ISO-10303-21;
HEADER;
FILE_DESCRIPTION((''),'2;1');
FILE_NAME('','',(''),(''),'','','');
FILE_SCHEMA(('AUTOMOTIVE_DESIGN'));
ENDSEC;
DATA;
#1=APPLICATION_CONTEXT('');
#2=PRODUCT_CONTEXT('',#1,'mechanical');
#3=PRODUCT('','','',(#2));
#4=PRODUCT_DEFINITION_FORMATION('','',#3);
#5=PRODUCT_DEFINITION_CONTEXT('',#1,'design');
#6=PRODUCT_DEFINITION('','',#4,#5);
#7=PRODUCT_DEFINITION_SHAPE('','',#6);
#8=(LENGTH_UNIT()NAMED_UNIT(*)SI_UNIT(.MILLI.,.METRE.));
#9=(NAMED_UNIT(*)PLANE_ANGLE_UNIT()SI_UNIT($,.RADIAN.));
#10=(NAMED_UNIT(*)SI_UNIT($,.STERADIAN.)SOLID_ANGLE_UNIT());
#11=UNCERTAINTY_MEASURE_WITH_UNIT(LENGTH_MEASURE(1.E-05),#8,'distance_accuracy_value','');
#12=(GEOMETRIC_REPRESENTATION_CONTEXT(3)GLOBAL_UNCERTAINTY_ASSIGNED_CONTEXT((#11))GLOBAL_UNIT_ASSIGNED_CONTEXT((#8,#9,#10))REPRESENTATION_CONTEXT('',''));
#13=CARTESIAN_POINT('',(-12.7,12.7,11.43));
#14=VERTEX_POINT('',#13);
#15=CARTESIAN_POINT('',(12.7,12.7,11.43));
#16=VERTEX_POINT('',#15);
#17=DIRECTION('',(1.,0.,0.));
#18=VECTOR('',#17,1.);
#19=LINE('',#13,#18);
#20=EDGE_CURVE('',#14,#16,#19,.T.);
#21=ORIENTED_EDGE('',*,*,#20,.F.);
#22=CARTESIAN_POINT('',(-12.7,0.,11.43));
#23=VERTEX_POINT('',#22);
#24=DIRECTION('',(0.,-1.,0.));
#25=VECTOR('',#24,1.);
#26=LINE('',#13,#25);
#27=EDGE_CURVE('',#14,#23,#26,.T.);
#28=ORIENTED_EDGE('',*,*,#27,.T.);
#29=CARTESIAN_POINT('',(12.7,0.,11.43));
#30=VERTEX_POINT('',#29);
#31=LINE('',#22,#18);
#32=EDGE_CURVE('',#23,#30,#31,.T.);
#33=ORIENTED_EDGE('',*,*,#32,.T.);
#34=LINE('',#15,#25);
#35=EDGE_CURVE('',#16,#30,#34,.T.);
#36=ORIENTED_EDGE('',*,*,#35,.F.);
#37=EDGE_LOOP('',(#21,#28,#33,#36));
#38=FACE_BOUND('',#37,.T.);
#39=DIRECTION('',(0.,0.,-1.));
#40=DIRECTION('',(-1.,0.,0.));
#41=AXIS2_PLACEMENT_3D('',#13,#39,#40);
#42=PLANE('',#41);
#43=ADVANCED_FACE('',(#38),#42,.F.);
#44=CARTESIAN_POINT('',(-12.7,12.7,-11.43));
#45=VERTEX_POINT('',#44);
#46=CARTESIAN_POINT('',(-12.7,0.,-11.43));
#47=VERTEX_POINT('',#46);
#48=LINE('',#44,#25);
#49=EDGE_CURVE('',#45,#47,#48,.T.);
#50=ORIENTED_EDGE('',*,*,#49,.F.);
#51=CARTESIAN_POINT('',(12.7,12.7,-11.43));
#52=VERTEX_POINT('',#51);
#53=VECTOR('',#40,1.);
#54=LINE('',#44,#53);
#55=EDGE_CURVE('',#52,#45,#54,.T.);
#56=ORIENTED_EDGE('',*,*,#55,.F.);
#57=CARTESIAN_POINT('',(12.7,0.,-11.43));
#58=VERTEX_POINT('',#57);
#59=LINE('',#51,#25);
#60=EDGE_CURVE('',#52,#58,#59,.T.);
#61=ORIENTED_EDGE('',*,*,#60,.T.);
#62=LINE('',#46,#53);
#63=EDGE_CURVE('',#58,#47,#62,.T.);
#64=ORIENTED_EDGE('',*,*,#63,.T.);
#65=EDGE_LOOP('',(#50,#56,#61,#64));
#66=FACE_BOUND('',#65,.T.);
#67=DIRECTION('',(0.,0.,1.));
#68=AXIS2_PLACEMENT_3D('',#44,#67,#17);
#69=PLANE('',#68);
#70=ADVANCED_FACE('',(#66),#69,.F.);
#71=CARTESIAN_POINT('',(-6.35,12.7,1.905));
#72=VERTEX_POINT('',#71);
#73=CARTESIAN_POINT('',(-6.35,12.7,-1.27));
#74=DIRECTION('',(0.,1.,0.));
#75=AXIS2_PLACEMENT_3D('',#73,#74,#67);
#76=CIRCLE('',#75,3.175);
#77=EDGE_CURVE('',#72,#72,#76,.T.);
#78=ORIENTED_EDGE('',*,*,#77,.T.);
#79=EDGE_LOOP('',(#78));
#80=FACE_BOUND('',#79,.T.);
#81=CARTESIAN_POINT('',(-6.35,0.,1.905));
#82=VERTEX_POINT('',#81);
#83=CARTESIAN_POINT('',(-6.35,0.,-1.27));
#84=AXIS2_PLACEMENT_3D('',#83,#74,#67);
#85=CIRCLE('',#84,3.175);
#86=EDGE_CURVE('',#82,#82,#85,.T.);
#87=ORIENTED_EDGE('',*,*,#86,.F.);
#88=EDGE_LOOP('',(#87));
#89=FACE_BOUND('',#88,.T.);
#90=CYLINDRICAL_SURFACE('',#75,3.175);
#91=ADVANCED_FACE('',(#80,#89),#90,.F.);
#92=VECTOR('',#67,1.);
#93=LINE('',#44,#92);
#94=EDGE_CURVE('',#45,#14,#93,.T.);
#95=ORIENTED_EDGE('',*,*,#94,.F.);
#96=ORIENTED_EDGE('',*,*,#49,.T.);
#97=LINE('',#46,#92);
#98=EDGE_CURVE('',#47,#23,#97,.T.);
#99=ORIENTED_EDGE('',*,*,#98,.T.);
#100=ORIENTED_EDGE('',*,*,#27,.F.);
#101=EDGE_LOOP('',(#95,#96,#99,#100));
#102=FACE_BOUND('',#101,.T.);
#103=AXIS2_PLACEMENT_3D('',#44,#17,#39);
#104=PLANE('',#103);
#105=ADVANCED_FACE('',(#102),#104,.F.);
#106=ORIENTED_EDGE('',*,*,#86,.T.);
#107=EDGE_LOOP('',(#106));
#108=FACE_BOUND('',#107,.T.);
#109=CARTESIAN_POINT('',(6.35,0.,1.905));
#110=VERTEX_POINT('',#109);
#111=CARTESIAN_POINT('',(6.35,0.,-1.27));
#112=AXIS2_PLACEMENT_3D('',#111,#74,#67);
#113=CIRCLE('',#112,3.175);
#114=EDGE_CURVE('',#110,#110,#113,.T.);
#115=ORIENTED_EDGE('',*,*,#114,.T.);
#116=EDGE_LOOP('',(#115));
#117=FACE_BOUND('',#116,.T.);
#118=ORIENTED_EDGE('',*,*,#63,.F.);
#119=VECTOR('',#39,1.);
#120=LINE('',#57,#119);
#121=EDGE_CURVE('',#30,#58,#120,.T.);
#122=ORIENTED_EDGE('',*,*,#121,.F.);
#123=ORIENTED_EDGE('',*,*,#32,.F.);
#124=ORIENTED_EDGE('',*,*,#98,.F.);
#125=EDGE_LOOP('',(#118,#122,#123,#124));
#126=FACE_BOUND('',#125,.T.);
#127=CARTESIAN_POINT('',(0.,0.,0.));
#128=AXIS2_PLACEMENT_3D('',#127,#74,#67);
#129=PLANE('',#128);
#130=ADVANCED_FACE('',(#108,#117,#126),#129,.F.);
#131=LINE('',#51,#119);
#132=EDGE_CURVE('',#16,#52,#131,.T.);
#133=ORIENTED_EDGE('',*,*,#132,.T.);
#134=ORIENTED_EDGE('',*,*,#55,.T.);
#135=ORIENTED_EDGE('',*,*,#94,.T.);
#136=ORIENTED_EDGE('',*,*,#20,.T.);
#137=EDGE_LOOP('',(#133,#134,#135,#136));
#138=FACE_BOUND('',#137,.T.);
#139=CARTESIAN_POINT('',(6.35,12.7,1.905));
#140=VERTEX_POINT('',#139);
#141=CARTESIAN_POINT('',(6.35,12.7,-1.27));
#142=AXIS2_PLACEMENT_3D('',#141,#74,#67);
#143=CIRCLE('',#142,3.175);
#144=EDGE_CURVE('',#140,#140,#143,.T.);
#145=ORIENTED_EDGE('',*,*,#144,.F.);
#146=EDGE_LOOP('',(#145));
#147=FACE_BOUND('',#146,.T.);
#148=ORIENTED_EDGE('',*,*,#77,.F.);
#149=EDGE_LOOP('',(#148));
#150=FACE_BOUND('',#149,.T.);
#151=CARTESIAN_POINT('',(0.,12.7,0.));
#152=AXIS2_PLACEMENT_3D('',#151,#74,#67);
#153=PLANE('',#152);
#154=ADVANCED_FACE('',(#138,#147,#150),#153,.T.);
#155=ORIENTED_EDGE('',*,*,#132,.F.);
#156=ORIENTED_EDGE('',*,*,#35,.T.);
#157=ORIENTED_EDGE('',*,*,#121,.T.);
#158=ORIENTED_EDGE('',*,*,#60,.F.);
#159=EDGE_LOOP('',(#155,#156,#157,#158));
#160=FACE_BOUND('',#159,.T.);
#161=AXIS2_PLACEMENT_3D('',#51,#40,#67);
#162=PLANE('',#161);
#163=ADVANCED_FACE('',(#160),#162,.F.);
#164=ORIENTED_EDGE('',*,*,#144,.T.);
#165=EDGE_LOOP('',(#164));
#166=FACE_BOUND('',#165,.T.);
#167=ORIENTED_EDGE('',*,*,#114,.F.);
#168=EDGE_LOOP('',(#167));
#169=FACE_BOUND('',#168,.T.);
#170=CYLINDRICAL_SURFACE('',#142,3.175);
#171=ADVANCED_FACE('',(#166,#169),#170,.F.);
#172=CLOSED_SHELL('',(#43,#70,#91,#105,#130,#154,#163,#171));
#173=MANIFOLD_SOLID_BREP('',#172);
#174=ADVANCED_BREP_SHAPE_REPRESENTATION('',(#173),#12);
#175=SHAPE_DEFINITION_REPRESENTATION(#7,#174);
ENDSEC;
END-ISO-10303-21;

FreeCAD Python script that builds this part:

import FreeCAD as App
import Part
import Sketcher

V = App.Vector
Q = App.Units.Quantity


def add_polygon(sketch, points):
    """Adds a closed chain of lines whose ends are joined by coincident constraints."""
    first, n = sketch.GeometryCount, len(points)
    for a, b in zip(points, points[1:] + points[:1]):
        sketch.addGeometry(Part.LineSegment(App.Vector(*a, 0), App.Vector(*b, 0)), False)
    for i in range(n):
        sketch.addConstraint(Sketcher.Constraint("Coincident", first + i, 2, first + (i + 1) % n, 1))

doc = App.newDocument("Part")
params = doc.addObject("Spreadsheet::Sheet", "Params")
for row, (alias, value) in enumerate([
    ("sketch1_width", "1 in"),
    ("sketch1_height", "0.9 in"),
    ("pad1_length", "0.5 in"),
    ("sketch2_diameter", "0.25 in"),
    ("hole_diameter", "0.25 in"),
    ("hole_depth", "0.5 in"),
], start=1):
    params.set(f"A{row}", alias)
    params.set(f"B{row}", "=" + value)
    params.setAlias(f"B{row}", alias)

body = doc.addObject("PartDesign::Body", "Body")

# Sketch on XZ plane
sketch1 = body.newObject("Sketcher::SketchObject", "Sketch")
sketch1.AttachmentSupport = (doc.getObject("XZ_Plane"), [""])
sketch1.MapMode = "FlatFace"
add_polygon(sketch1, [(-13, -11), (-13, 11), (13, 11), (13, -11)])  # lines 0-3
sketch1.addConstraint([
    Sketcher.Constraint("Vertical", 0),
    Sketcher.Constraint("Horizontal", 1),
    Sketcher.Constraint("Vertical", 2),
    Sketcher.Constraint("Horizontal", 3),
    Sketcher.Constraint("Symmetric", 0, 2, 2, 2, -1, 1),
    Sketcher.Constraint("DistanceX", 1, 1, 1, 2, Q("1 in")),
    Sketcher.Constraint("DistanceY", 0, 1, 0, 2, Q("0.9 in")),
])
sketch1.setExpression("Constraints[9]", "Params.sketch1_width")
sketch1.setExpression("Constraints[10]", "Params.sketch1_height")
pad1 = body.newObject("PartDesign::Pad", "Pad")
pad1.Profile = sketch1
pad1.setExpression("Length", "Params.pad1_length")
pad1.Reversed = True

# Sketch on XZ plane
sketch2 = body.newObject("Sketcher::SketchObject", "Sketch001")
sketch2.AttachmentSupport = (doc.getObject("XZ_Plane"), [""])
sketch2.MapMode = "FlatFace"
sketch2.AttachmentOffset = App.Placement(V(0, 0, -0.5 * 25.4), App.Rotation())
sketch2.addGeometry([
    Part.Circle(V(-6.3, -1.3, 0), V(0, 0, 1), 3.2),
    Part.Circle(V(6.3, -1.3, 0), V(0, 0, 1), 3.2),
], False)
sketch2.addConstraint([
    Sketcher.Constraint("Equal", 0, 1),
    Sketcher.Constraint("Symmetric", 0, 3, 1, 3, -2),
    Sketcher.Constraint("Diameter", 0, Q("0.25 in")),
    Sketcher.Constraint("DistanceX", 0, 3, 1, 3, Q("0.5 in")),
    Sketcher.Constraint("DistanceY", 0, 3, -1, 1, Q("0.05 in")),
])
sketch2.setExpression("Constraints[2]", "Params.sketch2_diameter")
doc.recompute()
hole = body.newObject("PartDesign::Hole", "Hole")
hole.Profile = sketch2
hole.ThreadType = "None"
hole.setExpression("Diameter", "Params.hole_diameter")
hole.DepthType = "Dimension"
hole.setExpression("Depth", "Params.hole_depth")
hole.DrillPoint = "Flat"
hole.Reversed = True

doc.recompute()
